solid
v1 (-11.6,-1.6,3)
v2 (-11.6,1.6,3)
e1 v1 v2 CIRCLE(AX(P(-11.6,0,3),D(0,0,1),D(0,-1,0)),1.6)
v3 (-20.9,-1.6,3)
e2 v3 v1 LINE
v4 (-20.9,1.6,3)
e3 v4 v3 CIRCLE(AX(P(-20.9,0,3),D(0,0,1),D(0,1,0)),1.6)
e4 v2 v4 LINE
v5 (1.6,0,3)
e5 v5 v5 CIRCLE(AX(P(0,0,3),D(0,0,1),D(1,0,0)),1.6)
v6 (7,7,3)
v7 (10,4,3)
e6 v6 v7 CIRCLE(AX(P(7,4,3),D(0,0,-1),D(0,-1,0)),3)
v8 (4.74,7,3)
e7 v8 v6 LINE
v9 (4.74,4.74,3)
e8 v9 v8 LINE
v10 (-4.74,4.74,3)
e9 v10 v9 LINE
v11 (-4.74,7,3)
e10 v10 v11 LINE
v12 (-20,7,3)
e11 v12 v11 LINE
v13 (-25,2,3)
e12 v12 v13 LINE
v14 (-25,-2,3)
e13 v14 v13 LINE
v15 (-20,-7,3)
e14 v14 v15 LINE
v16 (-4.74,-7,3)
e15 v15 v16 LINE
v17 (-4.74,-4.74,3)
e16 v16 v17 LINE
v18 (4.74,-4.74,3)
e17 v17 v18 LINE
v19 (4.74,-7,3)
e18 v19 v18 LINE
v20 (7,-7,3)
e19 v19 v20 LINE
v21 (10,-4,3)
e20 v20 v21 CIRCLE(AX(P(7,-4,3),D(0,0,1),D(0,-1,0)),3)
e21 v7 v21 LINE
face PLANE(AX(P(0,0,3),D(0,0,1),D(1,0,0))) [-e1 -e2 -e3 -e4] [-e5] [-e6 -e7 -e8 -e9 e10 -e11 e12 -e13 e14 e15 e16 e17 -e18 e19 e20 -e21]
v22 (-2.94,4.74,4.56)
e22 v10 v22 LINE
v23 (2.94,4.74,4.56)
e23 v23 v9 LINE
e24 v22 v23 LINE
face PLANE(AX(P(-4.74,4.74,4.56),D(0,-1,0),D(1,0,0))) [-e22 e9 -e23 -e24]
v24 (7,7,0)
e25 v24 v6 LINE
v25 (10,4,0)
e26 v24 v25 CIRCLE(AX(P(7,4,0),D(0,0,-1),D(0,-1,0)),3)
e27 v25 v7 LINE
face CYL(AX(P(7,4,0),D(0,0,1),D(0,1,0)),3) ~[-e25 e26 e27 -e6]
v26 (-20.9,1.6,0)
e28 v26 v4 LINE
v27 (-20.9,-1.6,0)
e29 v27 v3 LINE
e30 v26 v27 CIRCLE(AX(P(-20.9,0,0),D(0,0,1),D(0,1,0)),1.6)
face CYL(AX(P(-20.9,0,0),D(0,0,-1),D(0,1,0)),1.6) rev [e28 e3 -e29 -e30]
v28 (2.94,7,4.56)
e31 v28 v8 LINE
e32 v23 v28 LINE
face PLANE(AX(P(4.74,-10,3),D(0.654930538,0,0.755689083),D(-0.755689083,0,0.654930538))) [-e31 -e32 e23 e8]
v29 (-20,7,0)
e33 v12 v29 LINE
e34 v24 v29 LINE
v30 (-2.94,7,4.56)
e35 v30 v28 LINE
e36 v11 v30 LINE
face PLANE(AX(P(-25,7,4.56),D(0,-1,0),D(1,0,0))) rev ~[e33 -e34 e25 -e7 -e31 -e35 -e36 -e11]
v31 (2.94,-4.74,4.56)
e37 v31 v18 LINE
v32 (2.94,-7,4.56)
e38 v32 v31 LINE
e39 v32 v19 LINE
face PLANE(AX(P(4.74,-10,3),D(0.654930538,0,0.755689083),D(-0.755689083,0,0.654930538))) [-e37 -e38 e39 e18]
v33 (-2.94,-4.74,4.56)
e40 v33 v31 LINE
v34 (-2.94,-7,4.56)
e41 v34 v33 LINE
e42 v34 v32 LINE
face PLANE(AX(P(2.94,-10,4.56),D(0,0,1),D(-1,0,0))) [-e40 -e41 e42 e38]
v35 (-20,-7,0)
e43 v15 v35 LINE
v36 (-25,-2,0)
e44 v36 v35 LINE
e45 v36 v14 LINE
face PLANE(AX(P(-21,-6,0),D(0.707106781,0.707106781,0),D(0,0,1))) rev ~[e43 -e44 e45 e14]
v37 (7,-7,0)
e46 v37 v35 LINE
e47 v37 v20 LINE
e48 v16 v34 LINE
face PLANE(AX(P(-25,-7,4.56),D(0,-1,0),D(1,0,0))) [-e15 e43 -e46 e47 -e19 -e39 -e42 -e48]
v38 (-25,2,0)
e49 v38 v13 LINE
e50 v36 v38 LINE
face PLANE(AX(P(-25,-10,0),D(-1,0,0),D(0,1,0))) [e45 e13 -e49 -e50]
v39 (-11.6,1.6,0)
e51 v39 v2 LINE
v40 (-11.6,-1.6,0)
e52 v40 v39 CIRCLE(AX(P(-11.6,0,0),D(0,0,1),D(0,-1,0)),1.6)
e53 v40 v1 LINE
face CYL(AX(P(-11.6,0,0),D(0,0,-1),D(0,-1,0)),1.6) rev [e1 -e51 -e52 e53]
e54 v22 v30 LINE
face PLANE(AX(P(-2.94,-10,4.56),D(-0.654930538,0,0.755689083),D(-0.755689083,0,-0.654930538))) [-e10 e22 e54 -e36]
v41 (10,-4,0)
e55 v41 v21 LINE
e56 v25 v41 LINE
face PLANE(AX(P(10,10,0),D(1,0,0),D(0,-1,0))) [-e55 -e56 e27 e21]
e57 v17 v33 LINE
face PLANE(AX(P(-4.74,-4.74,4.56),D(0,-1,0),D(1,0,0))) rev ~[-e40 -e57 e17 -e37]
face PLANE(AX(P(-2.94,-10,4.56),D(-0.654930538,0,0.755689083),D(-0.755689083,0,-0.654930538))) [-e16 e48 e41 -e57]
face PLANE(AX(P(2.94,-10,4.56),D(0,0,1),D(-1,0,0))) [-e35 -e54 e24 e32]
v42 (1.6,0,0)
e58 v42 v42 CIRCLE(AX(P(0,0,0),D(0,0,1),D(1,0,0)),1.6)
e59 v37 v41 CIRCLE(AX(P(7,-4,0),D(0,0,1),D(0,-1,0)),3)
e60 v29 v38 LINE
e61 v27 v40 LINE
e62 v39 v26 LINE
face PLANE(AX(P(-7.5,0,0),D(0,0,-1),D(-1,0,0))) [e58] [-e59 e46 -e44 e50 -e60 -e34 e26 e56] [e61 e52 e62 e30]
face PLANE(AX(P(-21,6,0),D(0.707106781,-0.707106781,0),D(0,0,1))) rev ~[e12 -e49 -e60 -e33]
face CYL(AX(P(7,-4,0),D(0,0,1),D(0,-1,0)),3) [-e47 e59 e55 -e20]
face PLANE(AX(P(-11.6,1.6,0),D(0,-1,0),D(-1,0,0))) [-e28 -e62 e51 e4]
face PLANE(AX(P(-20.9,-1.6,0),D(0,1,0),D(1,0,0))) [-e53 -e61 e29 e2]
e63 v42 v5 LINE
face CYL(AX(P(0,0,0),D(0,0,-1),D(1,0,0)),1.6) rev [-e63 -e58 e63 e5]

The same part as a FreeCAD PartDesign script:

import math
import FreeCAD as App
import Part
import Sketcher


def edges_at(feature, points):
    """Names of the edges that pass closest to the given points."""
    edges = feature.Shape.Edges
    near = lambda p: min(range(len(edges)), key=lambda i: edges[i].distToShape(Part.Vertex(*p))[0])
    return sorted({f"Edge{near(p) + 1}" for p in points})


def add_polygon(sketch, points):
    """Adds a closed chain of lines whose ends are joined by coincident constraints."""
    first, n = sketch.GeometryCount, len(points)
    for a, b in zip(points, points[1:] + points[:1]):
        sketch.addGeometry(Part.LineSegment(App.Vector(*a, 0), App.Vector(*b, 0)), False)
    for i in range(n):
        sketch.addConstraint(Sketcher.Constraint("Coincident", first + i, 2, first + (i + 1) % n, 1))

doc = App.newDocument("Part")
body = doc.addObject("PartDesign::Body", "Body")

sketch1 = body.newObject("Sketcher::SketchObject", "Sketch")
sketch1.AttachmentSupport = (doc.getObject("XY_Plane"), [""])
sketch1.MapMode = "FlatFace"
add_polygon(sketch1, [(10, 10), (-25, 10), (-25, -10), (10, -10)])
sketch1.addGeometry(Part.Circle(App.Vector(0, 0, 0), App.Vector(0, 0, 1), 1.6), False)
sketch1.addGeometry(Part.LineSegment(App.Vector(-20.9, 1.6, 0), App.Vector(-11.6, 1.6, 0)), False)
sketch1.addGeometry(Part.ArcOfCircle(Part.Circle(App.Vector(-11.6, 0, 0), App.Vector(0, 0, 1), 1.6), math.radians(-90), math.radians(90)), False)
sketch1.addGeometry(Part.LineSegment(App.Vector(-11.6, -1.6, 0), App.Vector(-20.9, -1.6, 0)), False)
sketch1.addGeometry(Part.ArcOfCircle(Part.Circle(App.Vector(-20.9, 0, 0), App.Vector(0, 0, 1), 1.6), math.radians(90), math.radians(270)), False)
sketch1.addConstraint([
    Sketcher.Constraint("Tangent", 5, 2, 6, 2),
    Sketcher.Constraint("Tangent", 6, 1, 7, 1),
    Sketcher.Constraint("Tangent", 7, 2, 8, 2),
    Sketcher.Constraint("Tangent", 8, 1, 5, 1),
    Sketcher.Constraint("Horizontal", 0),
    Sketcher.Constraint("Vertical", 1),
    Sketcher.Constraint("Horizontal", 2),
    Sketcher.Constraint("Vertical", 3),
    Sketcher.Constraint("Horizontal", 5),
    Sketcher.Constraint("Horizontal", 7),
    Sketcher.Constraint("Coincident", 4, 3, -1, 1),
    Sketcher.Constraint("Equal", 4, 6),
    Sketcher.Constraint("PointOnObject", 6, 3, -1),
    Sketcher.Constraint("Diameter", 4, 3.2),
    Sketcher.Constraint("DistanceX", 0, 2, 0, 1, 35.0),
    Sketcher.Constraint("DistanceY", 1, 2, 1, 1, 20.0),
    Sketcher.Constraint("DistanceX", 5, 1, 5, 2, 9.3),
    Sketcher.Constraint("DistanceX", 0, 2, -1, 1, 25.0),
    Sketcher.Constraint("DistanceY", -1, 1, 0, 2, 10.0),
    Sketcher.Constraint("DistanceX", 6, 3, -1, 1, 11.6),
])
pad1 = body.newObject("PartDesign::Pad", "Pad")
pad1.Profile = sketch1
pad1.Length = 3

sketch2 = body.newObject("Sketcher::SketchObject", "Sketch001")
sketch2.AttachmentSupport = (doc.getObject("XZ_Plane"), [""])
sketch2.MapMode = "FlatFace"
sketch2.AttachmentOffset = App.Placement(App.Vector(0, 0, 10), App.Rotation())
add_polygon(sketch2, [(-4.7, 3), (4.7, 3), (2.9, 4.6), (-2.9, 4.6)])
sketch2.addConstraint([
    Sketcher.Constraint("Horizontal", 0),
    Sketcher.Constraint("Horizontal", 2),
    Sketcher.Constraint("Equal", 1, 3),
    Sketcher.Constraint("DistanceY", -1, 1, 0, 2, 3.0),
    Sketcher.Constraint("DistanceX", 0, 1, 0, 2, 9.48),
    Sketcher.Constraint("DistanceX", 2, 2, 2, 1, 5.88),
    Sketcher.Constraint("DistanceX", -1, 1, 0, 2, 4.74),
    Sketcher.Constraint("DistanceY", -1, 1, 1, 2, 4.56),
])
pad2 = body.newObject("PartDesign::Pad", "Pad001")
pad2.Profile = sketch2
pad2.Length = 20
pad2.Reversed = True

sketch3 = body.newObject("Sketcher::SketchObject", "Sketch002")
sketch3.AttachmentSupport = (doc.getObject("XY_Plane"), [""])
sketch3.MapMode = "FlatFace"
sketch3.AttachmentOffset = App.Placement(App.Vector(0, 0, 4.56), App.Rotation())
add_polygon(sketch3, [(-5, 5), (-5, -5), (5, -5), (5, 5)])
sketch3.addConstraint([
    Sketcher.Constraint("Vertical", 0),
    Sketcher.Constraint("Horizontal", 1),
    Sketcher.Constraint("Vertical", 2),
    Sketcher.Constraint("Horizontal", 3),
    Sketcher.Constraint("Symmetric", 0, 2, 2, 2, -1, 1),
    Sketcher.Constraint("Equal", 3, 0),
    Sketcher.Constraint("DistanceX", 1, 1, 1, 2, 9.48),
])
pocket1 = body.newObject("PartDesign::Pocket", "Pocket")
pocket1.Profile = sketch3
pocket1.Length = 1.56
doc.recompute()

chamfer = body.newObject("PartDesign::Chamfer", "Chamfer")
chamfer.Base = (pocket1, edges_at(pocket1, [(-25, 10, 1.5), (-25, -10, 1.5)]))
chamfer.Size = 8
doc.recompute()

fillet = body.newObject("PartDesign::Fillet", "Fillet")
fillet.Base = (chamfer, edges_at(chamfer, [(10, 10, 1.5), (10, -10, 1.5)]))
fillet.Radius = 3

sketch4 = body.newObject("Sketcher::SketchObject", "Sketch003")
sketch4.AttachmentSupport = (doc.getObject("XY_Plane"), [""])
sketch4.MapMode = "FlatFace"
sketch4.AttachmentOffset = App.Placement(App.Vector(0, 0, 4.56), App.Rotation())
add_polygon(sketch4, [(-25, 10), (-25, 7), (10, 7), (10, 10)])
add_polygon(sketch4, [(-25, -7), (-25, -10), (10, -10), (10, -7)])
sketch4.addConstraint([
    Sketcher.Constraint("Vertical", 0),
    Sketcher.Constraint("Horizontal", 1),
    Sketcher.Constraint("Vertical", 2),
    Sketcher.Constraint("Horizontal", 3),
    Sketcher.Constraint("Vertical", 4),
    Sketcher.Constraint("Horizontal", 5),
    Sketcher.Constraint("Vertical", 6),
    Sketcher.Constraint("Horizontal", 7),
    Sketcher.Constraint("Symmetric", 3, 2, 4, 2, -1),
    Sketcher.Constraint("Symmetric", 1, 2, 6, 2, -1),
    Sketcher.Constraint("DistanceX", 1, 1, 1, 2, 35.0),
    Sketcher.Constraint("DistanceY", 0, 2, 0, 1, 3.0),
    Sketcher.Constraint("DistanceX", 0, 2, -1, 1, 25.0),
    Sketcher.Constraint("DistanceY", -1, 1, 0, 2, 7.0),
])
pocket2 = body.newObject("PartDesign::Pocket", "Pocket001")
pocket2.Profile = sketch4
pocket2.Type = "ThroughAll"
doc.recompute()

fillet2 = body.newObject("PartDesign::Fillet", "Fillet001")
fillet2.Base = (pocket2, edges_at(pocket2, [(10, -7, 1.5), (10, 7, 1.5)]))
fillet2.Radius = 3

doc.recompute()
